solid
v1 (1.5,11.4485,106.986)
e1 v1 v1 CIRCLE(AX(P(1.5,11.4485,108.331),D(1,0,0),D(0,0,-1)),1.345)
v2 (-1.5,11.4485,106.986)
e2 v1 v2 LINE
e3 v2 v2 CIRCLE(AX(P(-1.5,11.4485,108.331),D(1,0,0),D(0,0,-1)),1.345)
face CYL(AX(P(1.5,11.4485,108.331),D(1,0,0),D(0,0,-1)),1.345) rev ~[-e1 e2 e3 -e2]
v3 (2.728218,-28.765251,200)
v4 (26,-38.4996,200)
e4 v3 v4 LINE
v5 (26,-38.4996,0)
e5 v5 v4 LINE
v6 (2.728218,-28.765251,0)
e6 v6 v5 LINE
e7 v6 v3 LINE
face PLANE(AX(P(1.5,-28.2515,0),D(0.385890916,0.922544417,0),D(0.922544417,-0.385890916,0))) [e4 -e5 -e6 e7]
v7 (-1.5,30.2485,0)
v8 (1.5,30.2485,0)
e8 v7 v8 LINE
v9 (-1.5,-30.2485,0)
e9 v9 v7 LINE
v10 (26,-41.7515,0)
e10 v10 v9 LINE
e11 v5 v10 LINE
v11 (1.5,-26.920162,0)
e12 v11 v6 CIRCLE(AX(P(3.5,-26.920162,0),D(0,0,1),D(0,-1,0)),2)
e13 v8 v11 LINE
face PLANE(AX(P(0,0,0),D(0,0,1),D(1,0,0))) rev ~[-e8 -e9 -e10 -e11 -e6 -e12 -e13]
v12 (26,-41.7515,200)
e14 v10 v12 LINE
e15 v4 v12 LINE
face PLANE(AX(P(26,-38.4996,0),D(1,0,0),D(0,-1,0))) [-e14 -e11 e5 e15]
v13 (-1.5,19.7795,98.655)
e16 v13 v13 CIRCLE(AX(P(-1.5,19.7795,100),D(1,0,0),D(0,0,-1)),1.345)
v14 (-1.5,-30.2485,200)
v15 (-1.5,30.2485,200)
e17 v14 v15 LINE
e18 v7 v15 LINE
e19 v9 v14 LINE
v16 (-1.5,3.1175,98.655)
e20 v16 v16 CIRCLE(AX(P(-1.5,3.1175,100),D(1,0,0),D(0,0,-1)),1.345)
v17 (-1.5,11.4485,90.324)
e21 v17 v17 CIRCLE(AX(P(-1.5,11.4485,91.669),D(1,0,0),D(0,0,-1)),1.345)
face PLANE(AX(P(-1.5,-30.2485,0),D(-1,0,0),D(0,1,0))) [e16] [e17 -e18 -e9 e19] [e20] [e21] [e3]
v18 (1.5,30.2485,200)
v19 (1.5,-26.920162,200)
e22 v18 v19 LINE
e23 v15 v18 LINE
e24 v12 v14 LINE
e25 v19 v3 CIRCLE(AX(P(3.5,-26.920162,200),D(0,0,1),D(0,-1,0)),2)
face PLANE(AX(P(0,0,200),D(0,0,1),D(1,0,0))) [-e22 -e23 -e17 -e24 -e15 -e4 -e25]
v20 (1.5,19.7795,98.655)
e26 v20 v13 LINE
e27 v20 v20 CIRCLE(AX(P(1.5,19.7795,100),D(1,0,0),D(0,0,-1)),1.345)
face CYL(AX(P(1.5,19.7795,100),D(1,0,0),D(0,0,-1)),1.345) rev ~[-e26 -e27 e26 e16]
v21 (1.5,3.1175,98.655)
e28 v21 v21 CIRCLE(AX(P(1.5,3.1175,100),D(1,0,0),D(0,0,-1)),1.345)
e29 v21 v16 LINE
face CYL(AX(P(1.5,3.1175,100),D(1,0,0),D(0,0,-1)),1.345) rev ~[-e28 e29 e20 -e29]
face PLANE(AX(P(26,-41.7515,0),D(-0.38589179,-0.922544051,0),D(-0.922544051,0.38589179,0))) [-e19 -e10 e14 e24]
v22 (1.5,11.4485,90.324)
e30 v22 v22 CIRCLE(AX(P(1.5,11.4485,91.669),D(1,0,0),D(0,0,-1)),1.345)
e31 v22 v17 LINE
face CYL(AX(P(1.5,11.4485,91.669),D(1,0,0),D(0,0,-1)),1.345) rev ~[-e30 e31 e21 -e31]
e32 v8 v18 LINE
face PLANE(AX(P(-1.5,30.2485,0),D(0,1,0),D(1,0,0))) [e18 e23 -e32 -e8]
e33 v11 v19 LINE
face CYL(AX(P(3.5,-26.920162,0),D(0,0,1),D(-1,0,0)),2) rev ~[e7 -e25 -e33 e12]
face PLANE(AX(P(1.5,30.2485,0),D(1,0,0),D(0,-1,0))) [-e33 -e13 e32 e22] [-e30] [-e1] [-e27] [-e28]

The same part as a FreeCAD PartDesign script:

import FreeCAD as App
import Part
import Sketcher
Q = App.Units.Quantity


def edges_at(feature, points):
    """Names of the edges that pass closest to the given points."""
    edges = feature.Shape.Edges
    near = lambda p: min(range(len(edges)), key=lambda i: edges[i].distToShape(Part.Vertex(*p))[0])
    return sorted({f"Edge{near(p) + 1}" for p in points})

doc = App.newDocument("Part")
body = doc.addObject("PartDesign::Body", "Body")

# Sketch on XY plane
sketch1 = body.newObject("Sketcher::SketchObject", "Sketch")
sketch1.AttachmentSupport = (doc.getObject("XY_Plane"), [""])
sketch1.MapMode = "FlatFace"
sketch1.addGeometry([
    Part.LineSegment(App.Vector(1.5, 30.2, 0), App.Vector(-1.5, 30.2, 0)),  # 0
    Part.LineSegment(App.Vector(-1.5, 30.2, 0), App.Vector(-1.5, -30.2, 0)),  # 1
    Part.LineSegment(App.Vector(-1.5, -30.2, 0), App.Vector(26, -41.8, 0)),  # 2
    Part.LineSegment(App.Vector(26, -41.8, 0), App.Vector(26, -38.5, 0)),  # 3
    Part.LineSegment(App.Vector(26, -38.5, 0), App.Vector(1.5, -28.3, 0)),  # 4
    Part.LineSegment(App.Vector(1.5, -28.3, 0), App.Vector(1.5, 30.2, 0)),  # 5
], False)
sketch1.addConstraint([
    Sketcher.Constraint("Coincident", 0, 2, 1, 1),
    Sketcher.Constraint("Coincident", 1, 2, 2, 1),
    Sketcher.Constraint("Coincident", 2, 2, 3, 1),
    Sketcher.Constraint("Coincident", 3, 2, 4, 1),
    Sketcher.Constraint("Coincident", 4, 2, 5, 1),
    Sketcher.Constraint("Coincident", 5, 2, 0, 1),
    Sketcher.Constraint("Horizontal", 0),
    Sketcher.Constraint("Vertical", 1),
    Sketcher.Constraint("Vertical", 3),
    Sketcher.Constraint("Vertical", 5),
    Sketcher.Constraint("Symmetric", 1, 2, 5, 2, -1, 1),
    Sketcher.Constraint("Parallel", 2, 4),
    Sketcher.Constraint("DistanceX", 0, 2, 0, 1, 3.0),
    Sketcher.Constraint("DistanceY", 5, 1, 5, 2, 58.5),
    Sketcher.Constraint("DistanceY", 2, 2, 0, 2, 72.0),
    Sketcher.Constraint("DistanceX", 4, 2, 3, 2, 24.5),
    Sketcher.Constraint("Angle", 2, Q("-22.699 deg")),
])
pad1 = body.newObject("PartDesign::Pad", "Pad")
pad1.Profile = sketch1
pad1.Length = 200

# Sketch on YZ plane
sketch2 = body.newObject("Sketcher::SketchObject", "Sketch001")
sketch2.AttachmentSupport = (doc.getObject("YZ_Plane"), [""])
sketch2.MapMode = "FlatFace"
sketch2.AttachmentOffset = App.Placement(App.Vector(0, 0, 1.5), App.Rotation())
sketch2.addGeometry([
    Part.Circle(App.Vector(19.8, 100, 0), App.Vector(0, 0, 1), 1.3),
    Part.Circle(App.Vector(3.1, 100, 0), App.Vector(0, 0, 1), 1.3),
    Part.Circle(App.Vector(11.4, 91.7, 0), App.Vector(0, 0, 1), 1.3),
    Part.Circle(App.Vector(11.4, 108.3, 0), App.Vector(0, 0, 1), 1.3),
], False)
sketch2.addConstraint([
    Sketcher.Constraint("Equal", 0, 1),
    Sketcher.Constraint("Equal", 1, 2),
    Sketcher.Constraint("Equal", 2, 3),
    Sketcher.Constraint("Horizontal", 0, 3, 1, 3),
    Sketcher.Constraint("Vertical", 2, 3, 3, 3),
    Sketcher.Constraint("Diameter", 0, 2.69),
    Sketcher.Constraint("DistanceY", -1, 1, 0, 3, 100.0),
    Sketcher.Constraint("DistanceX", 1, 3, 0, 3, 16.662),
    Sketcher.Constraint("DistanceX", 2, 3, 0, 3, 8.331),
    Sketcher.Constraint("DistanceY", 2, 3, 0, 3, 8.331),
    Sketcher.Constraint("DistanceY", 0, 3, 3, 3, 8.331),
    Sketcher.Constraint("DistanceX", -1, 1, 0, 3, 19.7795),
])
pocket1 = body.newObject("PartDesign::Pocket", "Pocket")
pocket1.Profile = sketch2
pocket1.Type = "ThroughAll"
doc.recompute()

fillet = body.newObject("PartDesign::Fillet", "Fillet")
fillet.Base = (pocket1, edges_at(pocket1, [(1.5, -28.252, 100)]))
fillet.Radius = 2

doc.recompute()
